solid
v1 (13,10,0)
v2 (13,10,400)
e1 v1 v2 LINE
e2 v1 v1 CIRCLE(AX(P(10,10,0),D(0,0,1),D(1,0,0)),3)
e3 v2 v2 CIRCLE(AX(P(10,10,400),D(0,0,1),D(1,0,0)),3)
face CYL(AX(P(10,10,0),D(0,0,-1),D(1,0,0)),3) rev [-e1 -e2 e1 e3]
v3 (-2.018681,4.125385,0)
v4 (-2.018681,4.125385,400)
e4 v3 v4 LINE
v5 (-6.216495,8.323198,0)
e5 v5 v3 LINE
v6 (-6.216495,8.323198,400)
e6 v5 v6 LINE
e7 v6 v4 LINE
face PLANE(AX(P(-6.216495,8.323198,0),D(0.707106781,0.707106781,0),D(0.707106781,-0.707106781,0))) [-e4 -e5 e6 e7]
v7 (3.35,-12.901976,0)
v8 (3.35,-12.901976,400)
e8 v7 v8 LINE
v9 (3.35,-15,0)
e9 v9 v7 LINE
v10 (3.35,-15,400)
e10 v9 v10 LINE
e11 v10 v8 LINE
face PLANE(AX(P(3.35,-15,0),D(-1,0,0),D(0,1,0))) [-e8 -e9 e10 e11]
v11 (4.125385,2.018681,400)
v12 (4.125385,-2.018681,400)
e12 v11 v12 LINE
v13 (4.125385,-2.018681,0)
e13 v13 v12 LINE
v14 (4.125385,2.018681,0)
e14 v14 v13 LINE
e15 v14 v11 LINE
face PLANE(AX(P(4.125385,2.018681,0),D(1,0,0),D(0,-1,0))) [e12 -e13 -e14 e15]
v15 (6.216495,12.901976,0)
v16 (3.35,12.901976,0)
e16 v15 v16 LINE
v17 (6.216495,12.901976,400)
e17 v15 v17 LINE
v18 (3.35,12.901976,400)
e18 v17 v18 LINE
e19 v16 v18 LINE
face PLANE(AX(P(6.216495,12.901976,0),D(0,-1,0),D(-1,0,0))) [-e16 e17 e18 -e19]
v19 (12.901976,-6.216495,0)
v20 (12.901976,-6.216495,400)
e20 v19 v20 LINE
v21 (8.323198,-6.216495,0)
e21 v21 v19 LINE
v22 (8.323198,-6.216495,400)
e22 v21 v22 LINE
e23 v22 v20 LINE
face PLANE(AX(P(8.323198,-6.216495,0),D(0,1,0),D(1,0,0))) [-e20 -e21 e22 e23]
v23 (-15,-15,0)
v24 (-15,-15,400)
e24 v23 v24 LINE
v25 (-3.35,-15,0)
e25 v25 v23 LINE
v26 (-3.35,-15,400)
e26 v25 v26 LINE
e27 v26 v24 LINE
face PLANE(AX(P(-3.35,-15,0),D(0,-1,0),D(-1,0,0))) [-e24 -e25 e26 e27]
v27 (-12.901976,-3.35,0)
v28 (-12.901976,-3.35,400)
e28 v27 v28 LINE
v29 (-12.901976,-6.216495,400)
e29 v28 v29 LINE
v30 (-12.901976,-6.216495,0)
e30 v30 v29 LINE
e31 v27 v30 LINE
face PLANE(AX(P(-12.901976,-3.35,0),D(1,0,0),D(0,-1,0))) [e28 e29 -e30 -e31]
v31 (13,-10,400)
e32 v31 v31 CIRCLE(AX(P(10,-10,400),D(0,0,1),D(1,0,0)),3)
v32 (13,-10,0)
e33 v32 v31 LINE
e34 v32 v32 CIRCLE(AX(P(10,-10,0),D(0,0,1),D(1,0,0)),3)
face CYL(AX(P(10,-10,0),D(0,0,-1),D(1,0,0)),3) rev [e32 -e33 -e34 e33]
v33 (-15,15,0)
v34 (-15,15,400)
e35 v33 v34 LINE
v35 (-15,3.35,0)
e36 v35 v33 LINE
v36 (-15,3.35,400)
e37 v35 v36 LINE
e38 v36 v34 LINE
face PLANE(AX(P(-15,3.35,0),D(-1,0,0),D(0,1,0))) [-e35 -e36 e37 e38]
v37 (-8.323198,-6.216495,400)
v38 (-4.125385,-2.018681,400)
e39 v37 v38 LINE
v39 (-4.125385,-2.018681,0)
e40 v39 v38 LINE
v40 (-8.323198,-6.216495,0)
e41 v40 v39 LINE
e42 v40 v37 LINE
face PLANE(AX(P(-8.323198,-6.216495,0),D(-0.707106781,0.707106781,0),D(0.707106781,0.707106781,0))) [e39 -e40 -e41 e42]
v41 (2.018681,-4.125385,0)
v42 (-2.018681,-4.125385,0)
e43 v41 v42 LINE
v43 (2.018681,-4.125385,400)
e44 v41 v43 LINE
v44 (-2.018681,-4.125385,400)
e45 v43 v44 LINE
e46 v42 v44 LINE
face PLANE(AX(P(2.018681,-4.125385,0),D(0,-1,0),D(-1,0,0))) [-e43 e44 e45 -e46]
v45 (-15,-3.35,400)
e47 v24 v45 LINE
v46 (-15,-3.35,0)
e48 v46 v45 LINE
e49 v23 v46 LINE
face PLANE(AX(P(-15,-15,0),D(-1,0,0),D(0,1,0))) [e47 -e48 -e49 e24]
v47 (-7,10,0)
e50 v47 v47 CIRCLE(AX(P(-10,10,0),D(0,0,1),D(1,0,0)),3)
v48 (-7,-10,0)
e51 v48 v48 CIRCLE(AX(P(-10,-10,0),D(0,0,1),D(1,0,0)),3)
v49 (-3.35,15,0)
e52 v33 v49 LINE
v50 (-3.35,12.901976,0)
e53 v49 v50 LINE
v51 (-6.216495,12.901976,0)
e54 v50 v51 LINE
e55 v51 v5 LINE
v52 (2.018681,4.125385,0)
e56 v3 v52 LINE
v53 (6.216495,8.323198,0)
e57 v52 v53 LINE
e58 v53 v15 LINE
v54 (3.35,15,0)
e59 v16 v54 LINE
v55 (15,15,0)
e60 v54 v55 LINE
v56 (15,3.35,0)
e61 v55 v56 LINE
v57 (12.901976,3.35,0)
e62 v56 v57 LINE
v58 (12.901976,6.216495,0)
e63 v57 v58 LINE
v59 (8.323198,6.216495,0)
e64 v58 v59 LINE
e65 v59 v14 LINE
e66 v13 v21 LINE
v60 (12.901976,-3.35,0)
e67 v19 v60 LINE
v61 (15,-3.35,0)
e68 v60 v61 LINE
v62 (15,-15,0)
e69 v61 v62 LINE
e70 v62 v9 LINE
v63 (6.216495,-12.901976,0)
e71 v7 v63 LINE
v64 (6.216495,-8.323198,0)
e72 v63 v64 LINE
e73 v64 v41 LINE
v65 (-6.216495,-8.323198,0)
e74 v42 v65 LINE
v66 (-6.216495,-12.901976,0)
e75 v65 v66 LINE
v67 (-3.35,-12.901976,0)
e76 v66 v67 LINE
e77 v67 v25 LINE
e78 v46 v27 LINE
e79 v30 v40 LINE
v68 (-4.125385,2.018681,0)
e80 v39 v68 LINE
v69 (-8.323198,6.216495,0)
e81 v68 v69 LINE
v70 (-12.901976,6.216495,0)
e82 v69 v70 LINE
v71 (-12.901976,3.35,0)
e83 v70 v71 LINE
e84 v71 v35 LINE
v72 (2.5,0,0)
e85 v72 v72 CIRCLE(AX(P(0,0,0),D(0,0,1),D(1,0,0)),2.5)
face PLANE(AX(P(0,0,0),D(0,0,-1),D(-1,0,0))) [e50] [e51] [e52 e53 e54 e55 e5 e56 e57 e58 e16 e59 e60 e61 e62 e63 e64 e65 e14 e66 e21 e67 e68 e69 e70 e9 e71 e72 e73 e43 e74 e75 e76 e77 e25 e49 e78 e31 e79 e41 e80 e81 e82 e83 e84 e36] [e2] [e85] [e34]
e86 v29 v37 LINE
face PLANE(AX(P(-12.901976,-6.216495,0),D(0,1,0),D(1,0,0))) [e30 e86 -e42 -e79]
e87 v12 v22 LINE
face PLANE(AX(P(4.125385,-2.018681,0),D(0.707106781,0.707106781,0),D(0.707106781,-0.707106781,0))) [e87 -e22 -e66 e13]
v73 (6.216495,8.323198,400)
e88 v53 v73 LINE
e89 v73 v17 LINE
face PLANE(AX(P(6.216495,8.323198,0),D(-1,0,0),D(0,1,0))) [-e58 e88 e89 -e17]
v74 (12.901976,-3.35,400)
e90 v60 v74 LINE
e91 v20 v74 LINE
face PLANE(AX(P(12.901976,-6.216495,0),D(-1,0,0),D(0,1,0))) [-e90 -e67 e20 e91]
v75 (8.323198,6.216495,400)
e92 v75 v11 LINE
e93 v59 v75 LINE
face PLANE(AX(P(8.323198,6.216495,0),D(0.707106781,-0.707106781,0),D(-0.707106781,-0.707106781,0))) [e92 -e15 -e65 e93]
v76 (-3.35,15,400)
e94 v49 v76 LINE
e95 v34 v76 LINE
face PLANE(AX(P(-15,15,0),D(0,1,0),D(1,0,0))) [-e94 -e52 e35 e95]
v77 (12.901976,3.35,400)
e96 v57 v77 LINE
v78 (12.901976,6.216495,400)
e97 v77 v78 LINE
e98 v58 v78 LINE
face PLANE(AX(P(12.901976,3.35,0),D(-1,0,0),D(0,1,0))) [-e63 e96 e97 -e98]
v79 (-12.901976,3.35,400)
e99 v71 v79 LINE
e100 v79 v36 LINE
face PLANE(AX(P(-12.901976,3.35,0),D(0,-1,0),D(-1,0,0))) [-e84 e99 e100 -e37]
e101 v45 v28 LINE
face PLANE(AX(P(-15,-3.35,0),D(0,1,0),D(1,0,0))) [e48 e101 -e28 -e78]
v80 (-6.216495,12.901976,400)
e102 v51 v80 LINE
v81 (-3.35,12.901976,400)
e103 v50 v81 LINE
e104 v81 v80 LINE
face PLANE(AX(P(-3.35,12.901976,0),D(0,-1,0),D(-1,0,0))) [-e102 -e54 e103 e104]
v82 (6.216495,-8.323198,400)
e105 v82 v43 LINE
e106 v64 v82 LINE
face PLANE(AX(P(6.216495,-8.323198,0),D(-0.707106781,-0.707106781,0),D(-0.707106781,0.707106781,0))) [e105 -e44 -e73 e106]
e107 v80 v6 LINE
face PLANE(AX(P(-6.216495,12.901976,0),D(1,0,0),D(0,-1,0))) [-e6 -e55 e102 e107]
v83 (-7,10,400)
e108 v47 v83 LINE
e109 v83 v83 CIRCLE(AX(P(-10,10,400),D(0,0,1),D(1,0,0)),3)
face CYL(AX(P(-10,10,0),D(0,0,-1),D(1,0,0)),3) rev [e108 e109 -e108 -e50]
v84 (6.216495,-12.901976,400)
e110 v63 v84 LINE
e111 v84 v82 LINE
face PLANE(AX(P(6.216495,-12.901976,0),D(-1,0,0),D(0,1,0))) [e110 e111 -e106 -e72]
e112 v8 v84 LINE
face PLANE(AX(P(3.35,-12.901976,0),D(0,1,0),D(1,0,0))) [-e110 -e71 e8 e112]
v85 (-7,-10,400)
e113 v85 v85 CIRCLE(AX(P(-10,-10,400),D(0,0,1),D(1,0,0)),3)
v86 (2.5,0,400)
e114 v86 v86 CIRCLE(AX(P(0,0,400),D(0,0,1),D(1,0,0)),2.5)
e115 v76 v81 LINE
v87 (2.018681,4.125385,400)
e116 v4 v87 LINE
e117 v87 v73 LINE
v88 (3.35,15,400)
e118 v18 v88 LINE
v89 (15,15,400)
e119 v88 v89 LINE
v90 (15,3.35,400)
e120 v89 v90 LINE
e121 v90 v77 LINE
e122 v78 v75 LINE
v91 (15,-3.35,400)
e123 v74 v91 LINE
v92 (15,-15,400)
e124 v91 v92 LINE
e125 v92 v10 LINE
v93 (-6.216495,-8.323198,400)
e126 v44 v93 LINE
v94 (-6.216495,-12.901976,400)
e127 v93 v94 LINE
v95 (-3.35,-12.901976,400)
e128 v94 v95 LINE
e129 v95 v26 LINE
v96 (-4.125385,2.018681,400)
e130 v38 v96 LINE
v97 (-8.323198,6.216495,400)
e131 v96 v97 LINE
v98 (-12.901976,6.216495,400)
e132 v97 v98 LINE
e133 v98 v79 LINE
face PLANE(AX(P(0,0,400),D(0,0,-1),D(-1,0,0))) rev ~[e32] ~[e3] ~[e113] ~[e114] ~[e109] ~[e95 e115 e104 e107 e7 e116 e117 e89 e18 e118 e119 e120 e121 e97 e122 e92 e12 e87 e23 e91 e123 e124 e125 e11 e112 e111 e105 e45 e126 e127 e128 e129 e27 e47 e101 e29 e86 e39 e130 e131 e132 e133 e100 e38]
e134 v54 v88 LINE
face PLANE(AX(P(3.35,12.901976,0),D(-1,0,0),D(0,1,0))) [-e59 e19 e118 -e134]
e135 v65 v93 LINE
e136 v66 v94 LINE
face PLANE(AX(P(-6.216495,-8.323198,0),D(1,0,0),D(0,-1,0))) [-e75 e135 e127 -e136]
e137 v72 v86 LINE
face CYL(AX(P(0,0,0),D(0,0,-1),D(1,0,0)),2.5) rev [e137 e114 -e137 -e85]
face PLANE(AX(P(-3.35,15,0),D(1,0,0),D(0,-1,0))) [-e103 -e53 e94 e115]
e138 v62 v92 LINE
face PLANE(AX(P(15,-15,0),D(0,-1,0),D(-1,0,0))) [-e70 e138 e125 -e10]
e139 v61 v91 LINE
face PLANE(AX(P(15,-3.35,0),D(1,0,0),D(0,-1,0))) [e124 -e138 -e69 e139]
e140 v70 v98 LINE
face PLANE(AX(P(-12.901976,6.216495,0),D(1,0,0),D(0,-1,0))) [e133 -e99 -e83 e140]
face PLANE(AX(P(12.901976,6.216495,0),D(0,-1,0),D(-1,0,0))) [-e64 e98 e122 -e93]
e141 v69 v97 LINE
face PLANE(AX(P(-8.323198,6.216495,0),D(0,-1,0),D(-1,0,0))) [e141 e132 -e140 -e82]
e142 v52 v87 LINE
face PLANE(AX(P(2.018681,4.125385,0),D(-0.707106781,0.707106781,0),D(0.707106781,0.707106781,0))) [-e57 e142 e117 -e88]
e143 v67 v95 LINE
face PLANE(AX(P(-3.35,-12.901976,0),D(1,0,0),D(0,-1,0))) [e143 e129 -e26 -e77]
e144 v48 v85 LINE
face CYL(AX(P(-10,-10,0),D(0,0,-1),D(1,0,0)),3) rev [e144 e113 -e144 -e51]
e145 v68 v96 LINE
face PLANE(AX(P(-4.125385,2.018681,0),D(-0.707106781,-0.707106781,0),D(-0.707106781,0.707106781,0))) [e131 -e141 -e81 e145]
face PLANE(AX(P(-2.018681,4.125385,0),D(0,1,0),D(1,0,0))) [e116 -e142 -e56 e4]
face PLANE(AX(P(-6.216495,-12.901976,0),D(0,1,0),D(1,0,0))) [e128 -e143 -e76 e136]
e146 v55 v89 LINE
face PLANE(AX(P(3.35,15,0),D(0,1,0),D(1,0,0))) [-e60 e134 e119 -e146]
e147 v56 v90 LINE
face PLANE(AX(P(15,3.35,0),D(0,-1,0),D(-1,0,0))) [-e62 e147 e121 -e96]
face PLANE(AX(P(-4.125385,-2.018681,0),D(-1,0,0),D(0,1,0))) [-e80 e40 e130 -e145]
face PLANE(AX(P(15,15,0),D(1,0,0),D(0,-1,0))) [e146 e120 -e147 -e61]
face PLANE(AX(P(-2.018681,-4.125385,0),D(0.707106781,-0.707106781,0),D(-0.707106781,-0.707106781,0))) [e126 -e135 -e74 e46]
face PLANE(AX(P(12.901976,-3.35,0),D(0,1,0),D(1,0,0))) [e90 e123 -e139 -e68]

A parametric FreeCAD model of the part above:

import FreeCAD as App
import Part
import Sketcher
from FreeCAD import Vector
Q = App.Units.Quantity


def add_polygon(sketch, points):
    """Adds a closed chain of lines whose ends are joined by coincident constraints."""
    first, n = sketch.GeometryCount, len(points)
    for a, b in zip(points, points[1:] + points[:1]):
        sketch.addGeometry(Part.LineSegment(App.Vector(*a, 0), App.Vector(*b, 0)), False)
    for i in range(n):
        sketch.addConstraint(Sketcher.Constraint("Coincident", first + i, 2, first + (i + 1) % n, 1))

doc = App.newDocument("Part")
body = doc.addObject("PartDesign::Body", "Body")

# Sketch on XY plane
sketch1 = body.newObject("Sketcher::SketchObject", "Sketch")
sketch1.AttachmentSupport = (doc.getObject("XY_Plane"), [""])
sketch1.MapMode = "FlatFace"
add_polygon(sketch1, [(-3.4, 15), (-15, 15), (-15, 3.4), (-12.9, 3.4), (-12.9, 6.2), (-8.3, 6.2), (-4.1, 2), (-4.1, -2), (-8.3, -6.2), (-12.9, -6.2), (-12.9, -3.4), (-15, -3.4), (-15, -15), (-3.4, -15), (-3.4, -12.9), (-6.2, -12.9), (-6.2, -8.3), (-2, -4.1), (2, -4.1), (6.2, -8.3), (6.2, -12.9), (3.4, -12.9), (3.4, -15), (15, -15), (15, -3.4), (12.9, -3.4), (12.9, -6.2), (8.3, -6.2), (4.1, -2), (4.1, 2), (8.3, 6.2), (12.9, 6.2), (12.9, 3.4), (15, 3.4), (15, 15), (3.4, 15), (3.4, 12.9), (6.2, 12.9), (6.2, 8.3), (2, 4.1), (-2, 4.1), (-6.2, 8.3), (-6.2, 12.9), (-3.4, 12.9)])  # lines 0-43
sketch1.addGeometry(Part.Circle(Vector(10, -10, 0), Vector(0, 0, 1), 3), False)  # 44
sketch1.addGeometry(Part.Circle(Vector(-10, -10, 0), Vector(0, 0, 1), 3), False)  # 45
sketch1.addGeometry(Part.Circle(Vector(10, 10, 0), Vector(0, 0, 1), 3), False)  # 46
sketch1.addGeometry(Part.Circle(Vector(0, 0, 0), Vector(0, 0, 1), 2.5), False)  # 47
sketch1.addGeometry(Part.Circle(Vector(-10, 10, 0), Vector(0, 0, 1), 3), False)  # 48
sketch1.addConstraint([
    Sketcher.Constraint("Horizontal", 0),
    Sketcher.Constraint("Vertical", 1),
    Sketcher.Constraint("Horizontal", 2),
    Sketcher.Constraint("Vertical", 3),
    Sketcher.Constraint("Horizontal", 4),
    Sketcher.Constraint("Vertical", 6),
    Sketcher.Constraint("Horizontal", 8),
    Sketcher.Constraint("Vertical", 9),
    Sketcher.Constraint("Horizontal", 10),
    Sketcher.Constraint("Vertical", 11),
    Sketcher.Constraint("Horizontal", 12),
    Sketcher.Constraint("Vertical", 13),
    Sketcher.Constraint("Horizontal", 14),
    Sketcher.Constraint("Vertical", 15),
    Sketcher.Constraint("Horizontal", 17),
    Sketcher.Constraint("Vertical", 19),
    Sketcher.Constraint("Horizontal", 20),
    Sketcher.Constraint("Vertical", 21),
    Sketcher.Constraint("Horizontal", 22),
    Sketcher.Constraint("Vertical", 23),
    Sketcher.Constraint("Horizontal", 24),
    Sketcher.Constraint("Vertical", 25),
    Sketcher.Constraint("Horizontal", 26),
    Sketcher.Constraint("Vertical", 28),
    Sketcher.Constraint("Horizontal", 30),
    Sketcher.Constraint("Vertical", 31),
    Sketcher.Constraint("Horizontal", 32),
    Sketcher.Constraint("Vertical", 33),
    Sketcher.Constraint("Horizontal", 34),
    Sketcher.Constraint("Vertical", 35),
    Sketcher.Constraint("Horizontal", 36),
    Sketcher.Constraint("Vertical", 37),
    Sketcher.Constraint("Horizontal", 39),
    Sketcher.Constraint("Vertical", 41),
    Sketcher.Constraint("Horizontal", 42),
    Sketcher.Constraint("Vertical", 43),
    Sketcher.Constraint("Coincident", 47, 3, -1, 1),
    Sketcher.Constraint("Equal", 44, 45),
    Sketcher.Constraint("Equal", 45, 46),
    Sketcher.Constraint("Equal", 46, 48),
    Sketcher.Constraint("Symmetric", 45, 3, 46, 3, -1, 1),
    Sketcher.Constraint("Symmetric", 44, 3, 48, 3, -1, 1),
    Sketcher.Constraint("Symmetric", 0, 2, 22, 2, -1, 1),
    Sketcher.Constraint("Symmetric", 2, 2, 24, 2, -1, 1),
    Sketcher.Constraint("Symmetric", 4, 2, 26, 2, -1, 1),
    Sketcher.Constraint("Symmetric", 5, 2, 27, 2, -1, 1),
    Sketcher.Constraint("Symmetric", 7, 2, 29, 2, -1, 1),
    Sketcher.Constraint("Symmetric", 9, 2, 31, 2, -1, 1),
    Sketcher.Constraint("Symmetric", 11, 2, 33, 2, -1, 1),
    Sketcher.Constraint("Symmetric", 13, 2, 35, 2, -1, 1),
    Sketcher.Constraint("Symmetric", 15, 2, 37, 2, -1, 1),
    Sketcher.Constraint("Symmetric", 16, 2, 38, 2, -1, 1),
    Sketcher.Constraint("Symmetric", 18, 2, 40, 2, -1, 1),
    Sketcher.Constraint("Symmetric", 20, 2, 42, 2, -1, 1),
    Sketcher.Constraint("Symmetric", 44, 3, 45, 3, -2),
    Sketcher.Constraint("Symmetric", 15, 2, 18, 2, -2),
    Sketcher.Constraint("Symmetric", 13, 2, 20, 2, -2),
    Sketcher.Constraint("Symmetric", 11, 2, 22, 2, -2),
    Sketcher.Constraint("Symmetric", 9, 2, 24, 2, -2),
    Sketcher.Constraint("Symmetric", 7, 2, 26, 2, -2),
    Sketcher.Constraint("Perpendicular", 5, 7),
    Sketcher.Constraint("Parallel", 7, 16),
    Sketcher.Constraint("Perpendicular", 16, 18),
    Sketcher.Constraint("Perpendicular", 27, 29),
    Sketcher.Constraint("Perpendicular", 38, 40),
    Sketcher.Constraint("Horizontal", 6, 2, 27, 2),
    Sketcher.Constraint("Equal", 34, 1),
    Sketcher.Constraint("Equal", 42, 3),
    Sketcher.Constraint("Equal", 39, 6),
    Sketcher.Constraint("Equal", 32, 13),
    Sketcher.Constraint("Equal", 30, 15),
    Sketcher.Constraint("Equal", 7, 16),
    Sketcher.Constraint("Diameter", 44, Q("6 mm")),
    Sketcher.Constraint("Diameter", 47, Q("5 mm")),
    Sketcher.Constraint("DistanceX", -1, 1, 44, 3, Q("10 mm")),
    Sketcher.Constraint("DistanceY", 44, 3, -1, 1, Q("10 mm")),
    Sketcher.Constraint("DistanceX", 0, 2, -1, 1, Q("15 mm")),
    Sketcher.Constraint("DistanceX", 0, 2, 0, 1, Q("11.65 mm")),
    Sketcher.Constraint("DistanceX", 4, 2, -1, 1, Q("8.323198 mm")),
    Sketcher.Constraint("DistanceX", 2, 1, 2, 2, Q("2.098024 mm")),
    Sketcher.Constraint("DistanceX", 14, 2, 14, 1, Q("2.866495 mm")),
    Sketcher.Constraint("DistanceX", 17, 1, 17, 2, Q("4.037363 mm")),
])
pad1 = body.newObject("PartDesign::Pad", "Pad")
pad1.Profile = sketch1
pad1.Length = 400

doc.recompute()
